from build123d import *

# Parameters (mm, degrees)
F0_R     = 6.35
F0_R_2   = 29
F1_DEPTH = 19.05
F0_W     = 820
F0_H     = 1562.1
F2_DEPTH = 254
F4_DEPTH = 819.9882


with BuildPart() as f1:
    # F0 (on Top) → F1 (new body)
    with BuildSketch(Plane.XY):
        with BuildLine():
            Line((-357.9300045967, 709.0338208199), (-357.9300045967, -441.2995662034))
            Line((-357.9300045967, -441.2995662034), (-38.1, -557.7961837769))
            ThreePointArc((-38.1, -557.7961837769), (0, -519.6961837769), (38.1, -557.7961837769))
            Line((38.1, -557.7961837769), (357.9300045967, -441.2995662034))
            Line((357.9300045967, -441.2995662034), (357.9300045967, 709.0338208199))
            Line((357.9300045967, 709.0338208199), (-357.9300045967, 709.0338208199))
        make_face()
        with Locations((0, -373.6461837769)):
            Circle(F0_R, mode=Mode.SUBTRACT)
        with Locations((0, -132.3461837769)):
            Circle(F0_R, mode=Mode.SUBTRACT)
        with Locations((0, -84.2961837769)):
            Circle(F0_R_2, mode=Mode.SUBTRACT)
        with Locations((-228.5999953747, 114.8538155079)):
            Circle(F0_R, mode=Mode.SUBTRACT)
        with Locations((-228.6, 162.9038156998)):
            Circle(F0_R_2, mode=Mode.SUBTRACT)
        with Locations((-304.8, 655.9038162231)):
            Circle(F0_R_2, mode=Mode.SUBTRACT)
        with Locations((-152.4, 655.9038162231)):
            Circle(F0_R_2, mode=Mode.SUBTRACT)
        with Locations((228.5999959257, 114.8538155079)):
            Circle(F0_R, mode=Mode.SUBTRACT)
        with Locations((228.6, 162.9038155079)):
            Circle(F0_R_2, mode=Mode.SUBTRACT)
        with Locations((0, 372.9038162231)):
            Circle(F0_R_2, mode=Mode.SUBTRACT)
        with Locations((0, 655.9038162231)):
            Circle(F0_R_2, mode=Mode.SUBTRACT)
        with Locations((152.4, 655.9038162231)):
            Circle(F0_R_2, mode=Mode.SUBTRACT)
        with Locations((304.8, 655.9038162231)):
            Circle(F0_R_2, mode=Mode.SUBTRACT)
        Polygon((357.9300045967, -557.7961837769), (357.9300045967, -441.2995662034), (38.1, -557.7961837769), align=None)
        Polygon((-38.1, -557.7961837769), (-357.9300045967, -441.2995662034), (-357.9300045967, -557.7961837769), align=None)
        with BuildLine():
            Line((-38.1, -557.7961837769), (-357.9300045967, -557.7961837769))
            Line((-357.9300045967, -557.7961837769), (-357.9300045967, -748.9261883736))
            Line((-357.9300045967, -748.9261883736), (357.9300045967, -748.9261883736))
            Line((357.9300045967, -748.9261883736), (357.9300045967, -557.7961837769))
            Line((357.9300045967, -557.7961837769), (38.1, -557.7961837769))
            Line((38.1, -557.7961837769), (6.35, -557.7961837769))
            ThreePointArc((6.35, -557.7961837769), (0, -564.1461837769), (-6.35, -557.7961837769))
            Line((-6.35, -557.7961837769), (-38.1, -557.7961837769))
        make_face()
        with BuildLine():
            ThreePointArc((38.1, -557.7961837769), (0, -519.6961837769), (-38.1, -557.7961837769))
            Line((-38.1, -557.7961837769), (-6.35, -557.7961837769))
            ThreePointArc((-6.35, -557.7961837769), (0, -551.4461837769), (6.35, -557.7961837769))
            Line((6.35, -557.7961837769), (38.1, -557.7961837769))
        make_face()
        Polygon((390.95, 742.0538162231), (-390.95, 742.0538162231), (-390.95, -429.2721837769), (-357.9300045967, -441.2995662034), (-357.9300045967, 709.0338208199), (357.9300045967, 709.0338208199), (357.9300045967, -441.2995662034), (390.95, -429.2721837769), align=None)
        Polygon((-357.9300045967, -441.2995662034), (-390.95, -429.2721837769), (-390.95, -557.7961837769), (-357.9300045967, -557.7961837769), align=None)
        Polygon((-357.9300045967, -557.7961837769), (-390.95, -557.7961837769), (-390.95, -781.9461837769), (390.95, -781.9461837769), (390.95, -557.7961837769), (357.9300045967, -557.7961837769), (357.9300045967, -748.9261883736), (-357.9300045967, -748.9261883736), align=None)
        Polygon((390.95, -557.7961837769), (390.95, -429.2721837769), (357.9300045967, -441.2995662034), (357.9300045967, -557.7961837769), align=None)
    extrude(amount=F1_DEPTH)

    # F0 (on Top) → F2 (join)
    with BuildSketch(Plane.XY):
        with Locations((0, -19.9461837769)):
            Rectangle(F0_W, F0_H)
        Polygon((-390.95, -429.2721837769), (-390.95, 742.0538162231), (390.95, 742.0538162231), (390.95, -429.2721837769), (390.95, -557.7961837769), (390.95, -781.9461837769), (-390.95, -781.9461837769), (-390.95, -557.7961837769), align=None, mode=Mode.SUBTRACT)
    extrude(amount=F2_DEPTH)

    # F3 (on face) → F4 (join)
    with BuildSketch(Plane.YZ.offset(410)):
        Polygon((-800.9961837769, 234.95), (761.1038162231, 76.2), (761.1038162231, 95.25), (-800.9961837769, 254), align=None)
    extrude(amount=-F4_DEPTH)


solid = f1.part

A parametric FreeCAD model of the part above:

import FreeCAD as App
import Part
import Sketcher

V = App.Vector
Q = App.Units.Quantity

doc = App.newDocument("Part")
body = doc.addObject("PartDesign::Body", "Body")

sketch1 = body.newObject("Sketcher::SketchObject", "Sketch")
sketch1.AttachmentSupport = (doc.getObject("XY_Plane"), [""])
sketch1.MapMode = "FlatFace"
sketch1.addGeometry(Part.LineSegment(V(390.95, 742.053816, 0), V(-390.95, 742.053816, 0)), False)
sketch1.addGeometry(Part.LineSegment(V(-390.95, 742.053816, 0), V(-390.95, -781.946184, 0)), False)
sketch1.addGeometry(Part.LineSegment(V(-390.95, -781.946184, 0), V(390.95, -781.946184, 0)), False)
sketch1.addGeometry(Part.LineSegment(V(390.95, -781.946184, 0), V(390.95, 742.053816, 0)), False)
sketch1.addGeometry(Part.Circle(V(0, -557.796184, 0), V(0, 0, 1), 6.35), False)
sketch1.addGeometry(Part.Circle(V(-228.599995, 114.853816, 0), V(0, 0, 1), 6.35), False)
sketch1.addGeometry(Part.Circle(V(0, -373.646184, 0), V(0, 0, 1), 6.35), False)
sketch1.addGeometry(Part.Circle(V(0, -132.346184, 0), V(0, 0, 1), 6.35), False)
sketch1.addGeometry(Part.Circle(V(0, -84.296184, 0), V(0, 0, 1), 29), False)
sketch1.addGeometry(Part.Circle(V(228.599996, 114.853816, 0), V(0, 0, 1), 6.35), False)
sketch1.addGeometry(Part.Circle(V(-228.6, 162.903816, 0), V(0, 0, 1), 29), False)
sketch1.addGeometry(Part.Circle(V(-304.8, 655.903816, 0), V(0, 0, 1), 29), False)
sketch1.addGeometry(Part.Circle(V(-152.4, 655.903816, 0), V(0, 0, 1), 29), False)
sketch1.addGeometry(Part.Circle(V(0, 372.903816, 0), V(0, 0, 1), 29), False)
sketch1.addGeometry(Part.Circle(V(228.6, 162.903816, 0), V(0, 0, 1), 29), False)
sketch1.addGeometry(Part.Circle(V(0, 655.903816, 0), V(0, 0, 1), 29), False)
sketch1.addGeometry(Part.Circle(V(152.4, 655.903816, 0), V(0, 0, 1), 29), False)
sketch1.addGeometry(Part.Circle(V(304.8, 655.903816, 0), V(0, 0, 1), 29), False)
sketch1.addConstraint(Sketcher.Constraint("Coincident", 0, 2, 1, 1))
sketch1.addConstraint(Sketcher.Constraint("Coincident", 1, 2, 2, 1))
sketch1.addConstraint(Sketcher.Constraint("Coincident", 2, 2, 3, 1))
sketch1.addConstraint(Sketcher.Constraint("Coincident", 3, 2, 0, 1))
sketch1.addConstraint(Sketcher.Constraint("Horizontal", 0))
sketch1.addConstraint(Sketcher.Constraint("Vertical", 1))
sketch1.addConstraint(Sketcher.Constraint("Horizontal", 2))
sketch1.addConstraint(Sketcher.Constraint("Vertical", 3))
sketch1.addConstraint(Sketcher.Constraint("Equal", 4, 5))
sketch1.addConstraint(Sketcher.Constraint("Equal", 5, 6))
sketch1.addConstraint(Sketcher.Constraint("Equal", 6, 7))
sketch1.addConstraint(Sketcher.Constraint("Equal", 7, 9))
sketch1.addConstraint(Sketcher.Constraint("Equal", 8, 10))
sketch1.addConstraint(Sketcher.Constraint("Equal", 10, 11))
sketch1.addConstraint(Sketcher.Constraint("Equal", 11, 12))
sketch1.addConstraint(Sketcher.Constraint("Equal", 12, 13))
sketch1.addConstraint(Sketcher.Constraint("Equal", 13, 14))
sketch1.addConstraint(Sketcher.Constraint("Equal", 14, 15))
sketch1.addConstraint(Sketcher.Constraint("Equal", 15, 16))
sketch1.addConstraint(Sketcher.Constraint("Equal", 16, 17))
sketch1.addConstraint(Sketcher.Constraint("Symmetric", 5, 3, 9, 3, -2))
sketch1.addConstraint(Sketcher.Constraint("Symmetric", 10, 3, 14, 3, -2))
sketch1.addConstraint(Sketcher.Constraint("Symmetric", 12, 3, 16, 3, -2))
sketch1.addConstraint(Sketcher.Constraint("Symmetric", 11, 3, 17, 3, -2))
sketch1.addConstraint(Sketcher.Constraint("PointOnObject", 4, 3, -2))
sketch1.addConstraint(Sketcher.Constraint("PointOnObject", 6, 3, -2))
sketch1.addConstraint(Sketcher.Constraint("PointOnObject", 7, 3, -2))
sketch1.addConstraint(Sketcher.Constraint("PointOnObject", 8, 3, -2))
sketch1.addConstraint(Sketcher.Constraint("PointOnObject", 13, 3, -2))
sketch1.addConstraint(Sketcher.Constraint("PointOnObject", 15, 3, -2))
sketch1.addConstraint(Sketcher.Constraint("Horizontal", 11, 3, 12, 3))
sketch1.addConstraint(Sketcher.Constraint("Horizontal", 12, 3, 15, 3))
sketch1.addConstraint(Sketcher.Constraint("Diameter", 4, Q("0.5 in")))
sketch1.addConstraint(Sketcher.Constraint("DistanceY", 1, 2, 1, 1, Q("60 in")))
sketch1.addConstraint(Sketcher.Constraint("DistanceX", 5, 3, -1, 1, Q("8.9999998 in")))
sketch1.addConstraint(Sketcher.Constraint("DistanceX", 10, 3, -1, 1, Q("9 in")))
sketch1.addConstraint(Sketcher.Constraint("DistanceX", 11, 3, -1, 1, Q("12 in")))
sketch1.addConstraint(Sketcher.Constraint("DistanceX", 12, 3, -1, 1, Q("6 in")))
sketch1.addConstraint(Sketcher.Constraint("DistanceY", 6, 3, 7, 3, Q("9.5 in")))
sketch1.addConstraint(Sketcher.Constraint("Diameter", 8, 58.0))
sketch1.addConstraint(Sketcher.Constraint("DistanceY", 4, 3, 6, 3, Q("7.25 in")))
sketch1.addConstraint(Sketcher.Constraint("DistanceX", 0, 2, 0, 1, 781.9))
sketch1.addConstraint(Sketcher.Constraint("DistanceX", 0, 2, -1, 1, 390.95))
sketch1.addConstraint(Sketcher.Constraint("DistanceY", 4, 3, 5, 3, 672.649999))
sketch1.addConstraint(Sketcher.Constraint("DistanceY", 7, 3, 8, 3, 48.05))
sketch1.addConstraint(Sketcher.Constraint("DistanceY", 5, 3, 10, 3, 48.05))
sketch1.addConstraint(Sketcher.Constraint("DistanceY", 10, 3, 11, 3, 493.000001))
sketch1.addConstraint(Sketcher.Constraint("DistanceY", 10, 3, 13, 3, 210.000001))
sketch1.addConstraint(Sketcher.Constraint("DistanceY", 11, 3, 0, 2, 86.15))
sketch1.addConstraint(Sketcher.Constraint("DistanceY", 4, 3, -1, 1, 557.796184))
pad1 = body.newObject("PartDesign::Pad", "Pad")
pad1.Profile = sketch1
pad1.Length = Q("0.75 in")

sketch2 = body.newObject("Sketcher::SketchObject", "Sketch001")
sketch2.AttachmentSupport = (doc.getObject("XY_Plane"), [""])
sketch2.MapMode = "FlatFace"
sketch2.addGeometry(Part.LineSegment(V(-410, 761.103816, 0), V(-410, -800.996184, 0)), False)
sketch2.addGeometry(Part.LineSegment(V(-410, -800.996184, 0), V(410, -800.996184, 0)), False)
sketch2.addGeometry(Part.LineSegment(V(410, -800.996184, 0), V(410, 761.103816, 0)), False)
sketch2.addGeometry(Part.LineSegment(V(410, 761.103816, 0), V(-410, 761.103816, 0)), False)
sketch2.addGeometry(Part.LineSegment(V(-390.95, -781.946184, 0), V(-390.95, 742.053816, 0)), False)
sketch2.addGeometry(Part.LineSegment(V(-390.95, 742.053816, 0), V(390.95, 742.053816, 0)), False)
sketch2.addGeometry(Part.LineSegment(V(390.95, 742.053816, 0), V(390.95, -781.946184, 0)), False)
sketch2.addGeometry(Part.LineSegment(V(390.95, -781.946184, 0), V(-390.95, -781.946184, 0)), False)
sketch2.addConstraint(Sketcher.Constraint("Coincident", 0, 2, 1, 1))
sketch2.addConstraint(Sketcher.Constraint("Coincident", 1, 2, 2, 1))
sketch2.addConstraint(Sketcher.Constraint("Coincident", 2, 2, 3, 1))
sketch2.addConstraint(Sketcher.Constraint("Coincident", 3, 2, 0, 1))
sketch2.addConstraint(Sketcher.Constraint("Coincident", 4, 2, 5, 1))
sketch2.addConstraint(Sketcher.Constraint("Coincident", 5, 2, 6, 1))
sketch2.addConstraint(Sketcher.Constraint("Coincident", 6, 2, 7, 1))
sketch2.addConstraint(Sketcher.Constraint("Coincident", 7, 2, 4, 1))
sketch2.addConstraint(Sketcher.Constraint("Vertical", 0))
sketch2.addConstraint(Sketcher.Constraint("Horizontal", 1))
sketch2.addConstraint(Sketcher.Constraint("Vertical", 2))
sketch2.addConstraint(Sketcher.Constraint("Horizontal", 3))
sketch2.addConstraint(Sketcher.Constraint("Vertical", 4))
sketch2.addConstraint(Sketcher.Constraint("Horizontal", 5))
sketch2.addConstraint(Sketcher.Constraint("Vertical", 6))
sketch2.addConstraint(Sketcher.Constraint("Horizontal", 7))
sketch2.addConstraint(Sketcher.Constraint("DistanceY", 4, 1, 4, 2, Q("60 in")))
sketch2.addConstraint(Sketcher.Constraint("DistanceY", 0, 2, 0, 1, Q("61.5 in")))
sketch2.addConstraint(Sketcher.Constraint("DistanceX", 3, 2, 4, 2, Q("0.75 in")))
sketch2.addConstraint(Sketcher.Constraint("DistanceY", 4, 2, 3, 2, Q("0.75 in")))
sketch2.addConstraint(Sketcher.Constraint("DistanceX", 5, 2, 2, 2, Q("0.75 in")))
sketch2.addConstraint(Sketcher.Constraint("DistanceX", 1, 1, 1, 2, 820.0))
sketch2.addConstraint(Sketcher.Constraint("DistanceX", 0, 2, -1, 1, 410.0))
sketch2.addConstraint(Sketcher.Constraint("DistanceY", 0, 2, -1, 1, 800.996184))
pad2 = body.newObject("PartDesign::Pad", "Pad001")
pad2.Profile = sketch2
pad2.Length = Q("10 in")

sketch3 = body.newObject("Sketcher::SketchObject", "Sketch002")
sketch3.AttachmentSupport = (doc.getObject("YZ_Plane"), [""])
sketch3.MapMode = "FlatFace"
sketch3.AttachmentOffset = App.Placement(V(0, 0, 410), App.Rotation())
sketch3.addGeometry(Part.LineSegment(V(-800.996184, 234.95, 0), V(761.103816, 76.2, 0)), False)
sketch3.addGeometry(Part.LineSegment(V(761.103816, 76.2, 0), V(761.103816, 95.25, 0)), False)
sketch3.addGeometry(Part.LineSegment(V(761.103816, 95.25, 0), V(-800.996184, 254, 0)), False)
sketch3.addGeometry(Part.LineSegment(V(-800.996184, 254, 0), V(-800.996184, 234.95, 0)), False)
sketch3.addConstraint(Sketcher.Constraint("Coincident", 0, 2, 1, 1))
sketch3.addConstraint(Sketcher.Constraint("Coincident", 1, 2, 2, 1))
sketch3.addConstraint(Sketcher.Constraint("Coincident", 2, 2, 3, 1))
sketch3.addConstraint(Sketcher.Constraint("Coincident", 3, 2, 0, 1))
sketch3.addConstraint(Sketcher.Constraint("Vertical", 1))
sketch3.addConstraint(Sketcher.Constraint("Vertical", 3))
sketch3.addConstraint(Sketcher.Constraint("Parallel", 0, 2))
sketch3.addConstraint(Sketcher.Constraint("DistanceY", -1, 1, 0, 2, Q("3 in")))
sketch3.addConstraint(Sketcher.Constraint("DistanceY", -1, 1, 2, 2, Q("10 in")))
sketch3.addConstraint(Sketcher.Constraint("DistanceY", 1, 1, 1, 2, Q("0.75 in")))
sketch3.addConstraint(Sketcher.Constraint("DistanceX", 2, 2, 1, 2, Q("61.5 in")))
sketch3.addConstraint(Sketcher.Constraint("DistanceX", -1, 1, 0, 2, 761.103816))
pad3 = body.newObject("PartDesign::Pad", "Pad002")
pad3.Profile = sketch3
pad3.Length = Q("32.283 in")
pad3.Reversed = True

doc.recompute()
